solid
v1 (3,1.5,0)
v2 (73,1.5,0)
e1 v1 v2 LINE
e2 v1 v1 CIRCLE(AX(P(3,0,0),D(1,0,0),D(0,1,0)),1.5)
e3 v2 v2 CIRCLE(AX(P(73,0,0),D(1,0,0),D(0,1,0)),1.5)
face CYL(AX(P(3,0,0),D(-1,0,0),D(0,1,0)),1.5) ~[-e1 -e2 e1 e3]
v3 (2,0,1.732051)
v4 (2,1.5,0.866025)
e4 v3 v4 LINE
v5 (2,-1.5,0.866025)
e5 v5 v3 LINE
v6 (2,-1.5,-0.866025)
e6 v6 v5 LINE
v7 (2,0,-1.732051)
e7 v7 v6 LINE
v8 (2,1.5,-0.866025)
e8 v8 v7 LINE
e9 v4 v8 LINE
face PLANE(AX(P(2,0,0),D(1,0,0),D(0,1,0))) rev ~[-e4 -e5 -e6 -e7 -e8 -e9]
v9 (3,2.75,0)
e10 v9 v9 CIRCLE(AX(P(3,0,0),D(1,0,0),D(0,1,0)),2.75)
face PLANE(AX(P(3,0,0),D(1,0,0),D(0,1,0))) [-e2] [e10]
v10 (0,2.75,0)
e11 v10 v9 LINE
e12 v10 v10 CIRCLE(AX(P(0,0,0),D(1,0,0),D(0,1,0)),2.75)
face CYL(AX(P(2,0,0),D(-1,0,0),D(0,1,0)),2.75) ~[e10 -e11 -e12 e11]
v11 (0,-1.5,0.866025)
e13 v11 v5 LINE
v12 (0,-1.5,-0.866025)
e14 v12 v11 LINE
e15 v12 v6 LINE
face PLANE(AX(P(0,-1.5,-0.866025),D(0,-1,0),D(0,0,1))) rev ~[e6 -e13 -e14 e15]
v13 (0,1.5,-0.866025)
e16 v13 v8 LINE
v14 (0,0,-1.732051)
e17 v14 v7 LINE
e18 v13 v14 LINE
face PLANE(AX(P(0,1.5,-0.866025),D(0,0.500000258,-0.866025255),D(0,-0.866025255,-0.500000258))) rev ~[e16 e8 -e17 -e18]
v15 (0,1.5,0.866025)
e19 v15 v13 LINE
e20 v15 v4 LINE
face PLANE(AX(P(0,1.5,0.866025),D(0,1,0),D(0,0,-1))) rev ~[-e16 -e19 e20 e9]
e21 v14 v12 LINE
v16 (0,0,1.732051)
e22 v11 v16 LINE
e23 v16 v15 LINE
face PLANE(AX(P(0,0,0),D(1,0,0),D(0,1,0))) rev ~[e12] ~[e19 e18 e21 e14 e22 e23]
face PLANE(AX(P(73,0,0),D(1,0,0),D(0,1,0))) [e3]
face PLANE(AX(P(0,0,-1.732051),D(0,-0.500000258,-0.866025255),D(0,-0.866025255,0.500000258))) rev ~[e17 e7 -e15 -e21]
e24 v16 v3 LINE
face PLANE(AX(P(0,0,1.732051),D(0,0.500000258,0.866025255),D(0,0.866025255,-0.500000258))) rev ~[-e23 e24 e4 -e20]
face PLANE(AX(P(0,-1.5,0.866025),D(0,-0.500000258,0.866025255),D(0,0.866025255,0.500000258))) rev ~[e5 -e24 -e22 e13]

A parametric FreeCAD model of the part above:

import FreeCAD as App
import Part
import Sketcher
from FreeCAD import Vector
Q = App.Units.Quantity

doc = App.newDocument("Part")
body = doc.addObject("PartDesign::Body", "Body")

sketch1 = doc.addObject("Sketcher::SketchObject", "Sketch")
body.addObject(sketch1)
sketch1.AttachmentSupport = (doc.YZ_Plane, [""])
sketch1.MapMode = "FlatFace"
sketch1.addGeometry([
    Part.Circle(Vector(0, 0, 0), Vector(0, 0, 1), 2.8),
    Part.LineSegment(Vector(0, -1.7, 0), Vector(-1.5, -0.9, 0)),
    Part.LineSegment(Vector(-1.5, -0.9, 0), Vector(-1.5, 0.9, 0)),
    Part.LineSegment(Vector(-1.5, 0.9, 0), Vector(0, 1.7, 0)),
    Part.LineSegment(Vector(0, 1.7, 0), Vector(1.5, 0.9, 0)),
    Part.LineSegment(Vector(1.5, 0.9, 0), Vector(1.5, -0.9, 0)),
    Part.LineSegment(Vector(1.5, -0.9, 0), Vector(0, -1.7, 0)),
], False)
sketch1.addConstraint([
    Sketcher.Constraint("Coincident", 1, 2, 2, 1),
    Sketcher.Constraint("Coincident", 2, 2, 3, 1),
    Sketcher.Constraint("Coincident", 3, 2, 4, 1),
    Sketcher.Constraint("Coincident", 4, 2, 5, 1),
    Sketcher.Constraint("Coincident", 5, 2, 6, 1),
    Sketcher.Constraint("Coincident", 6, 2, 1, 1),
    Sketcher.Constraint("Vertical", 2),
    Sketcher.Constraint("Vertical", 5),
    Sketcher.Constraint("Coincident", 0, 3, -1, 1),
    Sketcher.Constraint("Symmetric", 1, 2, 4, 2, -1, 1),
    Sketcher.Constraint("Symmetric", 3, 2, 6, 2, -1, 1),
    Sketcher.Constraint("PointOnObject", 3, 2, -2),
    Sketcher.Constraint("Parallel", 3, 6),
    Sketcher.Constraint("Horizontal", 2, 2, 4, 2),
    Sketcher.Constraint("Diameter", 0, Q("5.5 mm")),
    Sketcher.Constraint("Angle", 1, Q("149.999983 deg")),
    Sketcher.Constraint("DistanceX", 2, 2, 4, 2, Q("3 mm")),
    Sketcher.Constraint("DistanceY", 2, 1, 2, 2, Q("1.73205 mm")),
])
pad1 = doc.addObject("PartDesign::Pad", "Pad")
body.addObject(pad1)
pad1.Profile = sketch1
pad1.Length = 2

sketch2 = doc.addObject("Sketcher::SketchObject", "Sketch001")
body.addObject(sketch2)
sketch2.AttachmentSupport = (doc.YZ_Plane, [""])
sketch2.MapMode = "FlatFace"
sketch2.AttachmentOffset = App.Placement(Vector(0, 0, 2), App.Rotation())
sketch2.addGeometry(Part.Circle(Vector(0, 0, 0), Vector(0, 0, 1), 2.8), False)
sketch2.addConstraint([
    Sketcher.Constraint("Coincident", 0, 3, -1, 1),
    Sketcher.Constraint("Diameter", 0, Q("5.5 mm")),
])
pad2 = doc.addObject("PartDesign::Pad", "Pad001")
body.addObject(pad2)
pad2.Profile = sketch2
pad2.Length = 1

sketch3 = doc.addObject("Sketcher::SketchObject", "Sketch002")
body.addObject(sketch3)
sketch3.AttachmentSupport = (doc.YZ_Plane, [""])
sketch3.MapMode = "FlatFace"
sketch3.AttachmentOffset = App.Placement(Vector(0, 0, 3), App.Rotation())
sketch3.addGeometry(Part.Circle(Vector(0, 0, 0), Vector(0, 0, 1), 1.5), False)
sketch3.addConstraint([
    Sketcher.Constraint("Coincident", 0, 3, -1, 1),
    Sketcher.Constraint("Diameter", 0, Q("3 mm")),
])
pad3 = doc.addObject("PartDesign::Pad", "Pad002")
body.addObject(pad3)
pad3.Profile = sketch3
pad3.Length = 70

doc.recompute()
